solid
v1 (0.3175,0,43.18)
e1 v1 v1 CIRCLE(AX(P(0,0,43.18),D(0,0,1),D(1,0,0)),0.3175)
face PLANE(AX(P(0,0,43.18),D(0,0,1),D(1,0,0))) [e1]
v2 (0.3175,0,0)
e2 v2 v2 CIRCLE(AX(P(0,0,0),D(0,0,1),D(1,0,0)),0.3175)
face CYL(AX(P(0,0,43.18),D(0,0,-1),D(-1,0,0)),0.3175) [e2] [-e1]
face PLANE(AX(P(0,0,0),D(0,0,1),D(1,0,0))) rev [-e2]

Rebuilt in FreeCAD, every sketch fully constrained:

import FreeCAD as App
import Part
import Sketcher

V = App.Vector
Q = App.Units.Quantity

doc = App.newDocument("Part")
params = doc.addObject("Spreadsheet::Sheet", "Params")
for row, (alias, value) in enumerate([
    ("sketch1_diameter", "0.025 in"),
    ("pad1_length", "1.7 in"),
], start=1):
    params.set(f"A{row}", alias)
    params.set(f"B{row}", "=" + value)
    params.setAlias(f"B{row}", alias)

body = doc.addObject("PartDesign::Body", "Body")

sketch1 = doc.addObject("Sketcher::SketchObject", "Sketch")
body.addObject(sketch1)
sketch1.AttachmentSupport = (doc.XY_Plane, [""])
sketch1.MapMode = "FlatFace"
sketch1.addGeometry(Part.Circle(V(0, 0, 0), V(0, 0, 1), 0.32), False)
sketch1.addConstraint(Sketcher.Constraint("Coincident", 0, 3, -1, 1))
sketch1.addConstraint(Sketcher.Constraint("Diameter", 0, Q("0.025 in")))
sketch1.setExpression("Constraints[1]", "Params.sketch1_diameter")
pad1 = doc.addObject("PartDesign::Pad", "Pad")
body.addObject(pad1)
pad1.Profile = sketch1
pad1.setExpression("Length", "Params.pad1_length")

doc.recompute()
